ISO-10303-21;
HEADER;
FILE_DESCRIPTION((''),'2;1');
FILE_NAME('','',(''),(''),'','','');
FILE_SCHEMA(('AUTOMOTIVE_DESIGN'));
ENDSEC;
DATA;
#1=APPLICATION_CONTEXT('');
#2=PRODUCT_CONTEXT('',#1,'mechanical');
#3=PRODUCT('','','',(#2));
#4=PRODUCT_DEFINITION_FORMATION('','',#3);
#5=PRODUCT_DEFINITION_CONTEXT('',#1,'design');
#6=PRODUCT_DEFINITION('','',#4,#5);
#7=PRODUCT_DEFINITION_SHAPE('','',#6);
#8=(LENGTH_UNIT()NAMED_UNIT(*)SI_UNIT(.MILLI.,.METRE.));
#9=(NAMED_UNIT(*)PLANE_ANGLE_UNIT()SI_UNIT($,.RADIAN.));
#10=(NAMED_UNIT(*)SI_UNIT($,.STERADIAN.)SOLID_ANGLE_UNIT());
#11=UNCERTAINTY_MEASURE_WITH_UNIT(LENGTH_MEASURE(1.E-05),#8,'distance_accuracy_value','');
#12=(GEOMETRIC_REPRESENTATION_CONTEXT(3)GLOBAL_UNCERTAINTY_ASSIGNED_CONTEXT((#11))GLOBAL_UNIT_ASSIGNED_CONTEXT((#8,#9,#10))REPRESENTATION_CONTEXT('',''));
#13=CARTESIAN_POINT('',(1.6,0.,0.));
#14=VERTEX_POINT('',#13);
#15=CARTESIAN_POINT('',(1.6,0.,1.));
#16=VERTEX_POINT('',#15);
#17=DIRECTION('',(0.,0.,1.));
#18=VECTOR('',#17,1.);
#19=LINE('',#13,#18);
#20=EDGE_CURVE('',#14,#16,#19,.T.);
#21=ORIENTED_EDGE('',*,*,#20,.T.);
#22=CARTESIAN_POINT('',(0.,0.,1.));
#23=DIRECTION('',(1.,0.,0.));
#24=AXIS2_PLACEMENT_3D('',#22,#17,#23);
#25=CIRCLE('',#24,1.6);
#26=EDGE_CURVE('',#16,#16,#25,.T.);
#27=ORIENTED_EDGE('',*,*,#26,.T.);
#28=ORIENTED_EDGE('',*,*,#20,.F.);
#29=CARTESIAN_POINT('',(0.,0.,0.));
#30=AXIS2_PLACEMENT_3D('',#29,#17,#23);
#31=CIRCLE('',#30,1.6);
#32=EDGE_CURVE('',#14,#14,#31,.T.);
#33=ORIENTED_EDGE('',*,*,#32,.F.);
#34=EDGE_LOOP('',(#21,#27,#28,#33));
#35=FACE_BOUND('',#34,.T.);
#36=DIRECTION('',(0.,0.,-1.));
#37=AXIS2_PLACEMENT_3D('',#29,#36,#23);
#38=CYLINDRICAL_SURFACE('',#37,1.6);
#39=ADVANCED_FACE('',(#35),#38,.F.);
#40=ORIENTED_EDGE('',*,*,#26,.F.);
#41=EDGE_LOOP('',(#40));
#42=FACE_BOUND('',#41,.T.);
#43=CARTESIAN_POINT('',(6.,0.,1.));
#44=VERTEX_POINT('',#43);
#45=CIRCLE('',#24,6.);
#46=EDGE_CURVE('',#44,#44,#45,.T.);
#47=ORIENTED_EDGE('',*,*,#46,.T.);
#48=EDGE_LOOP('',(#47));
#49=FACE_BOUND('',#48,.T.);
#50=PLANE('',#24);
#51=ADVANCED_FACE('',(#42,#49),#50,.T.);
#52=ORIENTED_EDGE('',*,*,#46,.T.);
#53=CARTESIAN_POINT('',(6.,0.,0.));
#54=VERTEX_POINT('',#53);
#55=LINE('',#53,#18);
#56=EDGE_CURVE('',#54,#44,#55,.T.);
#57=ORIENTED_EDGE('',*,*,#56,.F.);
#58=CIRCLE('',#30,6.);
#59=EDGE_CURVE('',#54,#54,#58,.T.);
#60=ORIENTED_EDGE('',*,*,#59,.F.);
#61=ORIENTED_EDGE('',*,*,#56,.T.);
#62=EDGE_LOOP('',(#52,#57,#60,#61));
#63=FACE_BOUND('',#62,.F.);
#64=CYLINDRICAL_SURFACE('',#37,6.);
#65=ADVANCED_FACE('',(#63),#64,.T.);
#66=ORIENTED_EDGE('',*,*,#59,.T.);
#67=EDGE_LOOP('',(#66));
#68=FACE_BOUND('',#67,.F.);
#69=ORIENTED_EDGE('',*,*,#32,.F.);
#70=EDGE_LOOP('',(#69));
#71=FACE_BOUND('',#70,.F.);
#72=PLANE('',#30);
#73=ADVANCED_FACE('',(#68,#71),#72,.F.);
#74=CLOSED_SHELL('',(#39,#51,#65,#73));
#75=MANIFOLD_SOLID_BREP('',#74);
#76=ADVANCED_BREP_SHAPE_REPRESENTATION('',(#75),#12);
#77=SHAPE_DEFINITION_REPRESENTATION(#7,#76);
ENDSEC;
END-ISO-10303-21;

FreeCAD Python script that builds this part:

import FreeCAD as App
import Part
import Sketcher
Q = App.Units.Quantity

doc = App.newDocument("Part")
body = doc.addObject("PartDesign::Body", "Body")

# Sketch on XY plane
sketch1 = body.newObject("Sketcher::SketchObject", "Sketch")
sketch1.AttachmentSupport = (doc.getObject("XY_Plane"), [""])
sketch1.MapMode = "FlatFace"
sketch1.addGeometry(Part.Circle(App.Vector(0, 0, 0), App.Vector(0, 0, 1), 6), False)
sketch1.addGeometry(Part.Circle(App.Vector(0, 0, 0), App.Vector(0, 0, 1), 1.6), False)
sketch1.addConstraint(Sketcher.Constraint("Coincident", 0, 3, -1, 1))
sketch1.addConstraint(Sketcher.Constraint("Coincident", 1, 3, -1, 1))
sketch1.addConstraint(Sketcher.Constraint("Diameter", 0, Q("12 mm")))
sketch1.addConstraint(Sketcher.Constraint("Diameter", 1, Q("3.2 mm")))
pad1 = body.newObject("PartDesign::Pad", "Pad")
pad1.Profile = sketch1
pad1.Length = 1

doc.recompute()
